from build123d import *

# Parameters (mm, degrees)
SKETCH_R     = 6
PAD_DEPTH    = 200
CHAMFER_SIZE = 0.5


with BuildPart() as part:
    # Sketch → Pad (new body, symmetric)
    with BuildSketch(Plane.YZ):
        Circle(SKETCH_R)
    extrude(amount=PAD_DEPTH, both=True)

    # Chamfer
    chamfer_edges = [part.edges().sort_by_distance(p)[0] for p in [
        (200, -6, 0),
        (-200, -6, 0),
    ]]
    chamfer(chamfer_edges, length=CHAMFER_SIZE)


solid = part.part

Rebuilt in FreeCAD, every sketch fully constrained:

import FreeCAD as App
import Part
import Sketcher
from FreeCAD import Vector
Q = App.Units.Quantity


def edges_at(feature, points):
    """Names of the edges that pass closest to the given points."""
    edges = feature.Shape.Edges
    near = lambda p: min(range(len(edges)), key=lambda i: edges[i].distToShape(Part.Vertex(*p))[0])
    return sorted({f"Edge{near(p) + 1}" for p in points})

doc = App.newDocument("Part")
body = doc.addObject("PartDesign::Body", "Body")

# Sketch on YZ plane
sketch1 = body.newObject("Sketcher::SketchObject", "Sketch")
sketch1.AttachmentSupport = (doc.getObject("YZ_Plane"), [""])
sketch1.MapMode = "FlatFace"
sketch1.addGeometry(Part.Circle(Vector(0, 0, 0), Vector(0, 0, 1), 6), False)
sketch1.addConstraint(Sketcher.Constraint("Coincident", 0, 3, -1, 1))
sketch1.addConstraint(Sketcher.Constraint("Diameter", 0, Q("12 mm")))
pad1 = body.newObject("PartDesign::Pad", "Pad")
pad1.Profile = sketch1
pad1.Length = 400
pad1.Midplane = True
doc.recompute()

chamfer = body.newObject("PartDesign::Chamfer", "Chamfer")
chamfer.Base = (pad1, edges_at(pad1, [(200, -6, 0), (-200, -6, 0)]))
chamfer.Size = 0.5

doc.recompute()
